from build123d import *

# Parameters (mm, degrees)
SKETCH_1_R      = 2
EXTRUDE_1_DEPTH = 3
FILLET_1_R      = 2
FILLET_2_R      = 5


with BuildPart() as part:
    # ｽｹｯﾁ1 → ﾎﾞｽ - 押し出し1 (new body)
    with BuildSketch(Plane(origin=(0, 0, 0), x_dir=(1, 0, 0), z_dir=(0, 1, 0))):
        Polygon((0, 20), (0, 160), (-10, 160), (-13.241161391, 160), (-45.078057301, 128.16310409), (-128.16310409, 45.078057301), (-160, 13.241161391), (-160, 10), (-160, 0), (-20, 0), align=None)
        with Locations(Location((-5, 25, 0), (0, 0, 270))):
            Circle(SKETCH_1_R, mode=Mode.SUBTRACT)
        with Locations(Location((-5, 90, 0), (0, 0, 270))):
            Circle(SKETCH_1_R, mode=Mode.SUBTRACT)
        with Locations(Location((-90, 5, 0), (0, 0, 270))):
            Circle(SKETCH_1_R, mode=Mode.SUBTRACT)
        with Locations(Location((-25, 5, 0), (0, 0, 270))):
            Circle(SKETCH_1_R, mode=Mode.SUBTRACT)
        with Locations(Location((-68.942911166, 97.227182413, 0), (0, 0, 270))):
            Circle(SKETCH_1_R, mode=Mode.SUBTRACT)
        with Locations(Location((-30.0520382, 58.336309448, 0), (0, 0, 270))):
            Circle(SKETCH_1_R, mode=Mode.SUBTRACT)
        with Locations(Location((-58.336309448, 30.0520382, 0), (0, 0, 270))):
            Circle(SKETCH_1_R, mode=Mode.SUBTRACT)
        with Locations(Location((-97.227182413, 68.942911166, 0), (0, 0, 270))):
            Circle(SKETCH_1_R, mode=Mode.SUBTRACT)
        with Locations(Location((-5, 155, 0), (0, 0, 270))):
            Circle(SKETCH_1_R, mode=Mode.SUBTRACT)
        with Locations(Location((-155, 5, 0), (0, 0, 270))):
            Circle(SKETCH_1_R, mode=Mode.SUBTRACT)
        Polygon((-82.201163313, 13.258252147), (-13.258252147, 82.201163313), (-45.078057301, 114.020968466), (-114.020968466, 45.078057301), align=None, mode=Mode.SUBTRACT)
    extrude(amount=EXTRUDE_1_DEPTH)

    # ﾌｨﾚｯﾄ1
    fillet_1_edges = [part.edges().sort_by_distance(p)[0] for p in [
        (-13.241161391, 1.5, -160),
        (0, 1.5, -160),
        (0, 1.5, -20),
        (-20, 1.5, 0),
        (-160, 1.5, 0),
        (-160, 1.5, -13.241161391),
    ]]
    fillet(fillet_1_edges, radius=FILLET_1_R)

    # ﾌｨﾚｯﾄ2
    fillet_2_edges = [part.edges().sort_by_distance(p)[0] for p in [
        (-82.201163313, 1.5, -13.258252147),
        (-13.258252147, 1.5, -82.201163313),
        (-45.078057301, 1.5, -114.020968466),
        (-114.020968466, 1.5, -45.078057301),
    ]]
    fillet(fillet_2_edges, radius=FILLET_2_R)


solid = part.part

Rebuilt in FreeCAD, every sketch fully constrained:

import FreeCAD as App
import Part
import Sketcher
from FreeCAD import Vector


def edges_at(feature, points):
    """Names of the edges that pass closest to the given points."""
    edges = feature.Shape.Edges
    near = lambda p: min(range(len(edges)), key=lambda i: edges[i].distToShape(Part.Vertex(*p))[0])
    return sorted({f"Edge{near(p) + 1}" for p in points})

doc = App.newDocument("Part")
params = doc.addObject("Spreadsheet::Sheet", "Params")
for row, (alias, value) in enumerate([
    ("sketch1_diameter", "4 mm"),
    ("sketch1_width", "140 mm"),
    ("sketch1_length", "45 mm"),
    ("sketch1_length2", "97.5 mm"),
    ("pad1_length", "3 mm"),
    ("fillet_radius", "2 mm"),
    ("fillet2_radius", "5 mm"),
], start=1):
    params.set(f"A{row}", alias)
    params.set(f"B{row}", "=" + value)
    params.setAlias(f"B{row}", alias)

body = doc.addObject("PartDesign::Body", "Body")

sketch1 = body.newObject("Sketcher::SketchObject", "Sketch")
sketch1.AttachmentSupport = (doc.getObject("XZ_Plane"), [""])
sketch1.MapMode = "FlatFace"
sketch1.addGeometry([
    Part.LineSegment(Vector(0, -20, 0), Vector(0, -160, 0)),
    Part.LineSegment(Vector(0, -160, 0), Vector(-13.2, -160, 0)),
    Part.LineSegment(Vector(-13.2, -160, 0), Vector(-160, -13.2, 0)),
    Part.LineSegment(Vector(-160, -13.2, 0), Vector(-160, 0, 0)),
    Part.LineSegment(Vector(-160, 0, 0), Vector(-20, 0, 0)),
    Part.LineSegment(Vector(-20, 0, 0), Vector(0, -20, 0)),
    Part.Circle(Vector(-155, -5, 0), Vector(0, 0, 1), 2),
    Part.Circle(Vector(-90, -5, 0), Vector(0, 0, 1), 2),
    Part.Circle(Vector(-97.2, -68.9, 0), Vector(0, 0, 1), 2),
    Part.Circle(Vector(-58.3, -30.1, 0), Vector(0, 0, 1), 2),
    Part.Circle(Vector(-25, -5, 0), Vector(0, 0, 1), 2),
    Part.Circle(Vector(-5, -25, 0), Vector(0, 0, 1), 2),
    Part.LineSegment(Vector(-13.3, -82.2, 0), Vector(-82.2, -13.3, 0)),
    Part.LineSegment(Vector(-82.2, -13.3, 0), Vector(-114, -45.1, 0)),
    Part.LineSegment(Vector(-114, -45.1, 0), Vector(-45.1, -114, 0)),
    Part.LineSegment(Vector(-45.1, -114, 0), Vector(-13.3, -82.2, 0)),
    Part.Circle(Vector(-30.1, -58.3, 0), Vector(0, 0, 1), 2),
    Part.Circle(Vector(-68.9, -97.2, 0), Vector(0, 0, 1), 2),
    Part.Circle(Vector(-5, -90, 0), Vector(0, 0, 1), 2),
    Part.Circle(Vector(-5, -155, 0), Vector(0, 0, 1), 2),
], False)
sketch1.addConstraint([
    Sketcher.Constraint("Coincident", 0, 2, 1, 1),
    Sketcher.Constraint("Coincident", 1, 2, 2, 1),
    Sketcher.Constraint("Coincident", 2, 2, 3, 1),
    Sketcher.Constraint("Coincident", 3, 2, 4, 1),
    Sketcher.Constraint("Coincident", 4, 2, 5, 1),
    Sketcher.Constraint("Coincident", 5, 2, 0, 1),
    Sketcher.Constraint("Coincident", 12, 2, 13, 1),
    Sketcher.Constraint("Coincident", 13, 2, 14, 1),
    Sketcher.Constraint("Coincident", 14, 2, 15, 1),
    Sketcher.Constraint("Coincident", 15, 2, 12, 1),
    Sketcher.Constraint("Vertical", 0),
    Sketcher.Constraint("Horizontal", 1),
    Sketcher.Constraint("Vertical", 3),
    Sketcher.Constraint("Horizontal", 4),
    Sketcher.Constraint("Equal", 6, 7),
    Sketcher.Constraint("Equal", 7, 8),
    Sketcher.Constraint("Equal", 8, 9),
    Sketcher.Constraint("Equal", 9, 10),
    Sketcher.Constraint("Equal", 10, 11),
    Sketcher.Constraint("Equal", 11, 16),
    Sketcher.Constraint("Equal", 16, 17),
    Sketcher.Constraint("Equal", 17, 18),
    Sketcher.Constraint("Equal", 18, 19),
    Sketcher.Constraint("PointOnObject", 0, 2, -2),
    Sketcher.Constraint("PointOnObject", 3, 2, -1),
    Sketcher.Constraint("Parallel", 2, 5),
    Sketcher.Constraint("Parallel", 5, 12),
    Sketcher.Constraint("Perpendicular", 12, 13),
    Sketcher.Constraint("Perpendicular", 13, 14),
    Sketcher.Constraint("Perpendicular", 14, 15),
    Sketcher.Constraint("Horizontal", 6, 3, 7, 3),
    Sketcher.Constraint("Horizontal", 7, 3, 10, 3),
    Sketcher.Constraint("Vertical", 11, 3, 18, 3),
    Sketcher.Constraint("Vertical", 18, 3, 19, 3),
    Sketcher.Constraint("Equal", 4, 0),
    Sketcher.Constraint("Equal", 1, 3),
    Sketcher.Constraint("Diameter", 6, 4.0),
    Sketcher.Constraint("DistanceX", 4, 1, 4, 2, 140.0),
    Sketcher.Constraint("Distance", 13, 45.0),
    Sketcher.Constraint("DistanceX", 6, 3, -1, 1, 155.0),
    Sketcher.Constraint("DistanceY", 6, 3, -1, 1, 5.0),
    Sketcher.Constraint("DistanceX", 7, 3, -1, 1, 90.0),
    Sketcher.Constraint("DistanceX", 10, 3, -1, 1, 25.0),
    Sketcher.Constraint("DistanceX", 11, 3, -1, 1, 5.0),
    Sketcher.Constraint("DistanceY", 11, 3, -1, 1, 25.0),
    Sketcher.Constraint("DistanceY", 18, 3, -1, 1, 90.0),
    Sketcher.Constraint("DistanceY", 19, 3, -1, 1, 155.0),
    Sketcher.Constraint("DistanceY", 0, 2, -1, 1, 160.0),
    Sketcher.Constraint("Distance", 12, 97.5),
    Sketcher.Constraint("DistanceX", 1, 2, 1, 1, 13.241161),
    Sketcher.Constraint("DistanceY", 8, 3, 16, 3, 10.606602),
    Sketcher.Constraint("DistanceX", 17, 3, 9, 3, 10.606602),
    Sketcher.Constraint("DistanceY", 8, 3, -1, 1, 68.942911),
    Sketcher.Constraint("DistanceX", 9, 3, -1, 1, 58.336309),
    Sketcher.Constraint("DistanceY", 9, 3, -1, 1, 30.052038),
    Sketcher.Constraint("DistanceX", 16, 3, -1, 1, 30.052038),
    Sketcher.Constraint("DistanceX", 13, 2, -1, 1, 114.020968),
    Sketcher.Constraint("DistanceY", 14, 2, -1, 1, 114.020968),
    Sketcher.Constraint("DistanceX", 8, 3, 17, 3, 28.284271),
    Sketcher.Constraint("DistanceY", 17, 3, 8, 3, 28.284271),
])
sketch1.setExpression("Constraints[36]", "Params.sketch1_diameter")
sketch1.setExpression("Constraints[37]", "Params.sketch1_width")
sketch1.setExpression("Constraints[38]", "Params.sketch1_length")
sketch1.setExpression("Constraints[48]", "Params.sketch1_length2")
pad1 = body.newObject("PartDesign::Pad", "Pad")
pad1.Profile = sketch1
pad1.setExpression("Length", "Params.pad1_length")
pad1.Reversed = True
doc.recompute()

fillet = body.newObject("PartDesign::Fillet", "Fillet")
fillet.Base = (pad1, edges_at(pad1, [
    (-13.241, 1.5, -160),
    (0, 1.5, -160),
    (0, 1.5, -20),
    (-20, 1.5, 0),
    (-160, 1.5, 0),
    (-160, 1.5, -13.241),
]))
fillet.setExpression("Radius", "Params.fillet_radius")
doc.recompute()

fillet2 = body.newObject("PartDesign::Fillet", "Fillet001")
fillet2.Base = (fillet, edges_at(fillet, [
    (-82.201, 1.5, -13.258),
    (-13.258, 1.5, -82.201),
    (-45.078, 1.5, -114.021),
    (-114.021, 1.5, -45.078),
]))
fillet2.setExpression("Radius", "Params.fillet2_radius")

doc.recompute()
